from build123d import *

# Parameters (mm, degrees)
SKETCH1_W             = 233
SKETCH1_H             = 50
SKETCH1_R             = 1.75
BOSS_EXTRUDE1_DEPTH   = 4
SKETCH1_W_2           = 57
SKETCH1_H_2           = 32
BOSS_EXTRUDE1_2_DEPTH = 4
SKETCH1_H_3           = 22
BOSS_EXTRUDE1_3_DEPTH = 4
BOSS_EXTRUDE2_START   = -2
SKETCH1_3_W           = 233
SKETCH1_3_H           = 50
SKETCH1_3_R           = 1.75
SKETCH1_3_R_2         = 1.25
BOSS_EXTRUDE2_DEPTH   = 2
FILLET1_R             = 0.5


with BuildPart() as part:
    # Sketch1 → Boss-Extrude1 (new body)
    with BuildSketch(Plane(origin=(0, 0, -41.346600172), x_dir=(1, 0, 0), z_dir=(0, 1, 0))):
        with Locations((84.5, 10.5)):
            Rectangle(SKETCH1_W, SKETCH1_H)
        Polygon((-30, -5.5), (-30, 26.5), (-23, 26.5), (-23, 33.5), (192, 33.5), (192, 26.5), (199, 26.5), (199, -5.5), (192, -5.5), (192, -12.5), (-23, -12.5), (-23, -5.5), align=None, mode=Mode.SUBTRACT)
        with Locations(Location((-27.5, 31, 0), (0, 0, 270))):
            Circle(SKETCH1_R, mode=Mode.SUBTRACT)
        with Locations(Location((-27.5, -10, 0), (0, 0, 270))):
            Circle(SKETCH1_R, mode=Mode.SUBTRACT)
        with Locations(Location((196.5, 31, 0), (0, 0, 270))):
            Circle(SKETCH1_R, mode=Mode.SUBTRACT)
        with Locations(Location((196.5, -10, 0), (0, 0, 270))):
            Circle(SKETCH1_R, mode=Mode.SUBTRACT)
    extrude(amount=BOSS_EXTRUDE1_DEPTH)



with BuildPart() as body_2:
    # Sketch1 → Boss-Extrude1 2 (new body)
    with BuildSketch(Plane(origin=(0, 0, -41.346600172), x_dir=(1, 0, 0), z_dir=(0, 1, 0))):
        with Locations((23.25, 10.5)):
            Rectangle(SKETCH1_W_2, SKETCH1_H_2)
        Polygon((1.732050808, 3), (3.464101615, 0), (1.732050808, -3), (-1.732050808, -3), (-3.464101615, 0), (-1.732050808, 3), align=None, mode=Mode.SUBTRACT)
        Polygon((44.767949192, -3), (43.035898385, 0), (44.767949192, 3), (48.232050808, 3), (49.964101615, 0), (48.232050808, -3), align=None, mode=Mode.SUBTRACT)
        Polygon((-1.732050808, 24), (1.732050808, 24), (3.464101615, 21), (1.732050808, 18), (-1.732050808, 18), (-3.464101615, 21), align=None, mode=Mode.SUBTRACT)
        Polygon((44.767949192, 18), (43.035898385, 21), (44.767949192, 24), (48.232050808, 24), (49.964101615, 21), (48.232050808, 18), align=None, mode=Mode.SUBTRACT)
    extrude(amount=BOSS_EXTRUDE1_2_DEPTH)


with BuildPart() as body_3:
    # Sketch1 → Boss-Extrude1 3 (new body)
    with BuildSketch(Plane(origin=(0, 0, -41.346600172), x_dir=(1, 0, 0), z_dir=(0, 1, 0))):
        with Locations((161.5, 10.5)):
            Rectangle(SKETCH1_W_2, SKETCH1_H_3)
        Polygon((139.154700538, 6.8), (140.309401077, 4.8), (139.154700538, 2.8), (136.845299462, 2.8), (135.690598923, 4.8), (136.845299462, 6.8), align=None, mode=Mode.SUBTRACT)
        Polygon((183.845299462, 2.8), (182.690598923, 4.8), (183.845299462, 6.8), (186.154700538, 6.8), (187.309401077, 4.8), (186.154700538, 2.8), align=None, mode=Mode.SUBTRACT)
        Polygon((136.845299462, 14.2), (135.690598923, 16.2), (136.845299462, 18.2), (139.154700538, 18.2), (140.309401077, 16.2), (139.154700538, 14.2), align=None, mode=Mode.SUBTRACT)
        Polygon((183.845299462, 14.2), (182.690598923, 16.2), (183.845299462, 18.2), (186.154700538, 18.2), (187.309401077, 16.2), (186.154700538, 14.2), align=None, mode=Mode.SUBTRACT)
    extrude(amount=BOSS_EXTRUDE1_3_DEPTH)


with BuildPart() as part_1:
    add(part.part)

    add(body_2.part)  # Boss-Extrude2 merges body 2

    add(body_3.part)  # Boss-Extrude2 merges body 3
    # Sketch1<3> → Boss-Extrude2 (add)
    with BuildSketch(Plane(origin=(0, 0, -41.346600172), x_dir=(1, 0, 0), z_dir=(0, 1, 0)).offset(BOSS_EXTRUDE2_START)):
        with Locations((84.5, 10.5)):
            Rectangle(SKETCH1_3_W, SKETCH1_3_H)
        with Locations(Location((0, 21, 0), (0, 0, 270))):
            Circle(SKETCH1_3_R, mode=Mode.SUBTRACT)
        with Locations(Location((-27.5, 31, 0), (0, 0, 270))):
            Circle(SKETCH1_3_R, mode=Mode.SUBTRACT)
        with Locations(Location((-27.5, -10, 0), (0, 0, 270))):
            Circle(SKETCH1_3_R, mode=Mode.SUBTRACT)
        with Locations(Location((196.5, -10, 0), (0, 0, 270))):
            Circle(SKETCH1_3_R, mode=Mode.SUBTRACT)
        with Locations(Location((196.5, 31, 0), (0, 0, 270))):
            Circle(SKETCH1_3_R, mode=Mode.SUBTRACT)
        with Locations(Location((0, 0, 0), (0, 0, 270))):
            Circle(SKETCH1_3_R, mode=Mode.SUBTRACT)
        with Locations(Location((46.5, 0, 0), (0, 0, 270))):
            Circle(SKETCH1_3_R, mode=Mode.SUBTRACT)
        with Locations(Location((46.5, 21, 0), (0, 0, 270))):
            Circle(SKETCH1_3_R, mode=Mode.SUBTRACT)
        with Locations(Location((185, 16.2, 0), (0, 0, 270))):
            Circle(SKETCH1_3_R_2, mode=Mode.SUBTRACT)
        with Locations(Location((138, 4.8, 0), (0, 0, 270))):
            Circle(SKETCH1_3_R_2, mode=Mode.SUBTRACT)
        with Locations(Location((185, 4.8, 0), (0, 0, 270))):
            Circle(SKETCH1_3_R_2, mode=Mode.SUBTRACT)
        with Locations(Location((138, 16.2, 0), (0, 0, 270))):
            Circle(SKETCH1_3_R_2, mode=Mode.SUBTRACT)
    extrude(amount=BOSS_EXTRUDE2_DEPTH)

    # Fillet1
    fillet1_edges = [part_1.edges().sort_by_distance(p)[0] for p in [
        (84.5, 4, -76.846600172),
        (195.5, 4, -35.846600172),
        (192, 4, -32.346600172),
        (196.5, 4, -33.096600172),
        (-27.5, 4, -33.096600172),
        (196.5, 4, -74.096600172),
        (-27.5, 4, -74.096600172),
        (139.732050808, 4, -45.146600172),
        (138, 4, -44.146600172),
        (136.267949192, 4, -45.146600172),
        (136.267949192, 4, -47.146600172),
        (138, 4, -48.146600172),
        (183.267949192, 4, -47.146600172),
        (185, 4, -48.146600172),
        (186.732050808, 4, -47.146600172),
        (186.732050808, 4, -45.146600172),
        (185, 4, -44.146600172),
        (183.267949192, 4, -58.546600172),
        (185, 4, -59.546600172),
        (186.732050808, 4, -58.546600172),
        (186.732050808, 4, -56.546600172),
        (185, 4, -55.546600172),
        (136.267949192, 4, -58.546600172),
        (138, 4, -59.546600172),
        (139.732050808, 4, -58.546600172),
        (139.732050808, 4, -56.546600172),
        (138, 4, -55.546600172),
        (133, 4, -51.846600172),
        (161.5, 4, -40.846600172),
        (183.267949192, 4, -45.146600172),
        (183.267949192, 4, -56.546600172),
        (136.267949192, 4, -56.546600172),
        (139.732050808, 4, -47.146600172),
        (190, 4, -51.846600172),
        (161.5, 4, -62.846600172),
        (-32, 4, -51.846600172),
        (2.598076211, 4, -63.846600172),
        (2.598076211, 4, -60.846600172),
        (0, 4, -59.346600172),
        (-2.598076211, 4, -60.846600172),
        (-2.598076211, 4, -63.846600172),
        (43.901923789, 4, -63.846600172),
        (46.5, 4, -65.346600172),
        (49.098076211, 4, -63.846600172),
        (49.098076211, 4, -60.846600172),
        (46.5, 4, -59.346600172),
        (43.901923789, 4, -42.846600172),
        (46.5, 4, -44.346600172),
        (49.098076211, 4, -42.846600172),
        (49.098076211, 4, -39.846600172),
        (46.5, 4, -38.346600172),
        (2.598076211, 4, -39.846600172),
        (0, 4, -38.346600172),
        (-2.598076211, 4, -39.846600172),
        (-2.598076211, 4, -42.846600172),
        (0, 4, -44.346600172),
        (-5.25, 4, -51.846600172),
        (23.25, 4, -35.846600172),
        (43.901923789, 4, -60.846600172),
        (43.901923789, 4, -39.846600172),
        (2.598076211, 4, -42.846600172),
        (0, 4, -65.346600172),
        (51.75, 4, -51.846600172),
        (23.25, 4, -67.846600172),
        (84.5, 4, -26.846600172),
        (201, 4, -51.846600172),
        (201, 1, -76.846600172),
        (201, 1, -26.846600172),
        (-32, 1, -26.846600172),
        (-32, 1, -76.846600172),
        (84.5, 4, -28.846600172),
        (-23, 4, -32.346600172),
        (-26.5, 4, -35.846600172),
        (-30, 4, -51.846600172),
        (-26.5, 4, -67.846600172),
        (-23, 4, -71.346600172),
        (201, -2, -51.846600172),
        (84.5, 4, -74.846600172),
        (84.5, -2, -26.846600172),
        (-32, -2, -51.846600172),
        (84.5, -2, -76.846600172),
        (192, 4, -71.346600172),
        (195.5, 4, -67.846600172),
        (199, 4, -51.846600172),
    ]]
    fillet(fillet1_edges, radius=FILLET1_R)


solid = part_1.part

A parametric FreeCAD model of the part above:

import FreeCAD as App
import Part
import Sketcher
from FreeCAD import Vector
Q = App.Units.Quantity


def edges_at(feature, points):
    """Names of the edges that pass closest to the given points."""
    edges = feature.Shape.Edges
    near = lambda p: min(range(len(edges)), key=lambda i: edges[i].distToShape(Part.Vertex(*p))[0])
    return sorted({f"Edge{near(p) + 1}" for p in points})


def add_polygon(sketch, points):
    """Adds a closed chain of lines whose ends are joined by coincident constraints."""
    first, n = sketch.GeometryCount, len(points)
    for a, b in zip(points, points[1:] + points[:1]):
        sketch.addGeometry(Part.LineSegment(App.Vector(*a, 0), App.Vector(*b, 0)), False)
    for i in range(n):
        sketch.addConstraint(Sketcher.Constraint("Coincident", first + i, 2, first + (i + 1) % n, 1))

doc = App.newDocument("Part")
body = doc.addObject("PartDesign::Body", "Body")

# Sketch on XZ plane
sketch1 = doc.addObject("Sketcher::SketchObject", "Sketch")
body.addObject(sketch1)
sketch1.AttachmentSupport = (doc.XZ_Plane, [""])
sketch1.MapMode = "FlatFace"
add_polygon(sketch1, [(-32, -76.8466), (-32, -26.8466), (201, -26.8466), (201, -76.8466)])  # lines 0-3
sketch1.addGeometry(Part.Circle(Vector(-27.5, -31.3466, 0), Vector(0, 0, 1), 1.75), False)  # 4
sketch1.addGeometry(Part.Circle(Vector(196.5, -31.3466, 0), Vector(0, 0, 1), 1.75), False)  # 5
sketch1.addGeometry(Part.Circle(Vector(-27.5, -72.3466, 0), Vector(0, 0, 1), 1.75), False)  # 6
add_polygon(sketch1, [(-23, -35.8466), (-30, -35.8466), (-30, -67.8466), (-23, -67.8466), (-23, -74.8466), (192, -74.8466), (192, -67.8466), (199, -67.8466), (199, -35.8466), (192, -35.8466), (192, -28.8466), (-23, -28.8466)])  # lines 7-18
sketch1.addGeometry(Part.Circle(Vector(196.5, -72.3466, 0), Vector(0, 0, 1), 1.75), False)  # 19
sketch1.addConstraint([
    Sketcher.Constraint("Vertical", 0),
    Sketcher.Constraint("Horizontal", 1),
    Sketcher.Constraint("Vertical", 2),
    Sketcher.Constraint("Horizontal", 3),
    Sketcher.Constraint("Horizontal", 7),
    Sketcher.Constraint("Vertical", 8),
    Sketcher.Constraint("Horizontal", 9),
    Sketcher.Constraint("Vertical", 10),
    Sketcher.Constraint("Horizontal", 11),
    Sketcher.Constraint("Vertical", 12),
    Sketcher.Constraint("Horizontal", 13),
    Sketcher.Constraint("Vertical", 14),
    Sketcher.Constraint("Horizontal", 15),
    Sketcher.Constraint("Vertical", 16),
    Sketcher.Constraint("Horizontal", 17),
    Sketcher.Constraint("Vertical", 18),
    Sketcher.Constraint("Equal", 4, 5),
    Sketcher.Constraint("Equal", 5, 6),
    Sketcher.Constraint("Equal", 6, 19),
    Sketcher.Constraint("Horizontal", 4, 3, 5, 3),
    Sketcher.Constraint("Horizontal", 6, 3, 19, 3),
    Sketcher.Constraint("Horizontal", 9, 2, 12, 2),
    Sketcher.Constraint("Horizontal", 7, 2, 14, 2),
    Sketcher.Constraint("Vertical", 4, 3, 6, 3),
    Sketcher.Constraint("Vertical", 5, 3, 19, 3),
    Sketcher.Constraint("Vertical", 12, 2, 15, 2),
    Sketcher.Constraint("Vertical", 10, 2, 17, 2),
    Sketcher.Constraint("Equal", 9, 13),
    Sketcher.Constraint("Equal", 15, 10),
    Sketcher.Constraint("Equal", 12, 16),
    Sketcher.Constraint("Diameter", 4, 3.5),
    Sketcher.Constraint("DistanceX", 1, 1, 1, 2, 233.0),
    Sketcher.Constraint("DistanceX", 7, 2, 7, 1, 7.0),
    Sketcher.Constraint("DistanceX", 11, 1, 11, 2, 215.0),
    Sketcher.Constraint("DistanceY", 0, 1, 0, 2, 50.0),
    Sketcher.Constraint("DistanceY", 8, 2, 8, 1, 32.0),
    Sketcher.Constraint("DistanceX", 0, 2, -1, 1, 32.0),
    Sketcher.Constraint("DistanceX", 7, 2, -1, 1, 30.0),
    Sketcher.Constraint("DistanceX", 4, 3, 5, 3, 224.0),
    Sketcher.Constraint("DistanceY", 6, 3, 4, 3, 41.0),
    Sketcher.Constraint("DistanceY", 7, 2, 0, 2, 9.0),
    Sketcher.Constraint("DistanceX", 4, 3, -1, 1, 27.5),
    Sketcher.Constraint("DistanceY", 4, 3, 0, 2, 4.5),
    Sketcher.Constraint("DistanceY", 4, 3, -1, 1, 31.3466),
])
pad1 = doc.addObject("PartDesign::Pad", "Pad")
body.addObject(pad1)
pad1.Profile = sketch1
pad1.Length = 4
pad1.Reversed = True
body2 = doc.addObject("PartDesign::Body", "Body001")

# Sketch on XZ plane
sketch2 = doc.addObject("Sketcher::SketchObject", "Sketch001")
body2.addObject(sketch2)
sketch2.AttachmentSupport = (doc.getObject("XZ_Plane001"), [""])
sketch2.MapMode = "FlatFace"
add_polygon(sketch2, [(-5.25, -67.8466), (-5.25, -35.8466), (51.75, -35.8466), (51.75, -67.8466)])  # lines 0-3
add_polygon(sketch2, [(-1.732051, -44.3466), (1.732051, -44.3466), (3.464102, -41.3466), (1.732051, -38.3466), (-1.732051, -38.3466), (-3.464102, -41.3466)])  # lines 4-9
add_polygon(sketch2, [(48.232051, -38.3466), (44.767949, -38.3466), (43.035898, -41.3466), (44.767949, -44.3466), (48.232051, -44.3466), (49.964102, -41.3466)])  # lines 10-15
add_polygon(sketch2, [(-3.464102, -62.3466), (-1.732051, -65.3466), (1.732051, -65.3466), (3.464102, -62.3466), (1.732051, -59.3466), (-1.732051, -59.3466)])  # lines 16-21
add_polygon(sketch2, [(48.232051, -59.3466), (44.767949, -59.3466), (43.035898, -62.3466), (44.767949, -65.3466), (48.232051, -65.3466), (49.964102, -62.3466)])  # lines 22-27
sketch2.addConstraint([
    Sketcher.Constraint("Vertical", 0),
    Sketcher.Constraint("Horizontal", 1),
    Sketcher.Constraint("Vertical", 2),
    Sketcher.Constraint("Horizontal", 3),
    Sketcher.Constraint("Horizontal", 4),
    Sketcher.Constraint("Horizontal", 7),
    Sketcher.Constraint("Horizontal", 10),
    Sketcher.Constraint("Horizontal", 13),
    Sketcher.Constraint("Horizontal", 17),
    Sketcher.Constraint("Horizontal", 20),
    Sketcher.Constraint("Horizontal", 22),
    Sketcher.Constraint("Horizontal", 25),
    Sketcher.Constraint("Symmetric", 5, 2, 8, 2, -2),
    Sketcher.Constraint("Symmetric", 18, 2, 21, 2, -2),
    Sketcher.Constraint("Parallel", 5, 8),
    Sketcher.Constraint("Parallel", 6, 9),
    Sketcher.Constraint("Parallel", 8, 11),
    Sketcher.Constraint("Parallel", 9, 12),
    Sketcher.Constraint("Parallel", 11, 14),
    Sketcher.Constraint("Parallel", 12, 15),
    Sketcher.Constraint("Parallel", 15, 16),
    Sketcher.Constraint("Parallel", 14, 18),
    Sketcher.Constraint("Parallel", 16, 19),
    Sketcher.Constraint("Parallel", 18, 21),
    Sketcher.Constraint("Parallel", 21, 23),
    Sketcher.Constraint("Parallel", 19, 24),
    Sketcher.Constraint("Parallel", 23, 26),
    Sketcher.Constraint("Parallel", 24, 27),
    Sketcher.Constraint("Horizontal", 7, 2, 10, 2),
    Sketcher.Constraint("Horizontal", 8, 2, 11, 2),
    Sketcher.Constraint("Horizontal", 9, 2, 12, 2),
    Sketcher.Constraint("Horizontal", 11, 2, 14, 2),
    Sketcher.Constraint("Horizontal", 20, 2, 22, 2),
    Sketcher.Constraint("Horizontal", 21, 2, 23, 2),
    Sketcher.Constraint("Horizontal", 17, 2, 24, 2),
    Sketcher.Constraint("Horizontal", 23, 2, 26, 2),
    Sketcher.Constraint("Vertical", 4, 2, 6, 2),
    Sketcher.Constraint("Vertical", 7, 2, 9, 2),
    Sketcher.Constraint("Vertical", 9, 2, 16, 2),
    Sketcher.Constraint("Vertical", 5, 2, 18, 2),
    Sketcher.Constraint("Vertical", 17, 2, 19, 2),
    Sketcher.Constraint("Vertical", 12, 2, 22, 2),
    Sketcher.Constraint("Vertical", 15, 2, 25, 2),
    Sketcher.Constraint("Equal", 7, 10),
    Sketcher.Constraint("DistanceX", 1, 1, 1, 2, 57.0),
    Sketcher.Constraint("DistanceY", 0, 1, 0, 2, 32.0),
    Sketcher.Constraint("Angle", 5, Q("60 deg")),
    Sketcher.Constraint("DistanceY", 4, 2, 5, 2, 3.0),
    Sketcher.Constraint("DistanceY", 16, 2, 9, 2, 21.0),
    Sketcher.Constraint("DistanceY", 4, 2, 0, 2, 8.5),
    Sketcher.Constraint("DistanceX", 0, 2, -1, 1, 5.25),
    Sketcher.Constraint("DistanceX", 4, 1, 4, 2, 3.464102),
    Sketcher.Constraint("DistanceY", 0, 2, -1, 1, 35.8466),
    Sketcher.Constraint("DistanceX", -1, 1, 11, 2, 43.035898),
])
pad2 = doc.addObject("PartDesign::Pad", "Pad001")
body2.addObject(pad2)
pad2.Profile = sketch2
pad2.Length = 4
pad2.Reversed = True
body3 = doc.addObject("PartDesign::Body", "Body002")

# Sketch on XZ plane
sketch3 = doc.addObject("Sketcher::SketchObject", "Sketch002")
body3.addObject(sketch3)
sketch3.AttachmentSupport = (doc.getObject("XZ_Plane002"), [""])
sketch3.MapMode = "FlatFace"
add_polygon(sketch3, [(133, -62.8466), (133, -40.8466), (190, -40.8466), (190, -62.8466)])  # lines 0-3
add_polygon(sketch3, [(136.845299, -48.1466), (139.154701, -48.1466), (140.309401, -46.1466), (139.154701, -44.1466), (136.845299, -44.1466), (135.690599, -46.1466)])  # lines 4-9
add_polygon(sketch3, [(186.154701, -44.1466), (183.845299, -44.1466), (182.690599, -46.1466), (183.845299, -48.1466), (186.154701, -48.1466), (187.309401, -46.1466)])  # lines 10-15
add_polygon(sketch3, [(139.154701, -55.5466), (136.845299, -55.5466), (135.690599, -57.5466), (136.845299, -59.5466), (139.154701, -59.5466), (140.309401, -57.5466)])  # lines 16-21
add_polygon(sketch3, [(186.154701, -55.5466), (183.845299, -55.5466), (182.690599, -57.5466), (183.845299, -59.5466), (186.154701, -59.5466), (187.309401, -57.5466)])  # lines 22-27
sketch3.addConstraint([
    Sketcher.Constraint("Vertical", 0),
    Sketcher.Constraint("Horizontal", 1),
    Sketcher.Constraint("Vertical", 2),
    Sketcher.Constraint("Horizontal", 3),
    Sketcher.Constraint("Horizontal", 4),
    Sketcher.Constraint("Horizontal", 7),
    Sketcher.Constraint("Horizontal", 10),
    Sketcher.Constraint("Horizontal", 13),
    Sketcher.Constraint("Horizontal", 16),
    Sketcher.Constraint("Horizontal", 19),
    Sketcher.Constraint("Horizontal", 22),
    Sketcher.Constraint("Horizontal", 25),
    Sketcher.Constraint("Parallel", 5, 8),
    Sketcher.Constraint("Parallel", 6, 9),
    Sketcher.Constraint("Parallel", 8, 11),
    Sketcher.Constraint("Parallel", 9, 12),
    Sketcher.Constraint("Parallel", 11, 14),
    Sketcher.Constraint("Parallel", 12, 15),
    Sketcher.Constraint("Parallel", 14, 17),
    Sketcher.Constraint("Parallel", 15, 18),
    Sketcher.Constraint("Parallel", 17, 20),
    Sketcher.Constraint("Parallel", 18, 21),
    Sketcher.Constraint("Parallel", 20, 23),
    Sketcher.Constraint("Parallel", 21, 24),
    Sketcher.Constraint("Parallel", 23, 26),
    Sketcher.Constraint("Parallel", 24, 27),
    Sketcher.Constraint("Horizontal", 5, 2, 8, 2),
    Sketcher.Constraint("Horizontal", 7, 2, 10, 2),
    Sketcher.Constraint("Horizontal", 8, 2, 11, 2),
    Sketcher.Constraint("Horizontal", 9, 2, 12, 2),
    Sketcher.Constraint("Horizontal", 11, 2, 14, 2),
    Sketcher.Constraint("Horizontal", 17, 2, 20, 2),
    Sketcher.Constraint("Horizontal", 21, 2, 22, 2),
    Sketcher.Constraint("Horizontal", 20, 2, 23, 2),
    Sketcher.Constraint("Horizontal", 19, 2, 24, 2),
    Sketcher.Constraint("Horizontal", 23, 2, 26, 2),
    Sketcher.Constraint("Vertical", 4, 2, 6, 2),
    Sketcher.Constraint("Vertical", 7, 2, 9, 2),
    Sketcher.Constraint("Vertical", 9, 2, 16, 2),
    Sketcher.Constraint("Vertical", 8, 2, 17, 2),
    Sketcher.Constraint("Vertical", 16, 2, 18, 2),
    Sketcher.Constraint("Vertical", 6, 2, 19, 2),
    Sketcher.Constraint("Vertical", 12, 2, 22, 2),
    Sketcher.Constraint("Vertical", 15, 2, 25, 2),
    Sketcher.Constraint("Equal", 7, 10),
    Sketcher.Constraint("DistanceX", 1, 1, 1, 2, 57.0),
    Sketcher.Constraint("DistanceY", 0, 1, 0, 2, 22.0),
    Sketcher.Constraint("Angle", 5, Q("60 deg")),
    Sketcher.Constraint("DistanceX", -1, 1, 0, 2, 133.0),
    Sketcher.Constraint("DistanceY", 4, 2, 5, 2, 2.0),
    Sketcher.Constraint("DistanceY", 4, 2, 0, 2, 7.3),
    Sketcher.Constraint("DistanceY", 16, 2, 9, 2, 7.4),
    Sketcher.Constraint("DistanceX", 4, 1, 4, 2, 2.309401),
    Sketcher.Constraint("DistanceY", 0, 2, -1, 1, 40.8466),
    Sketcher.Constraint("DistanceX", -1, 1, 4, 2, 139.154701),
    Sketcher.Constraint("DistanceX", -1, 1, 10, 2, 183.845299),
])
pad3 = doc.addObject("PartDesign::Pad", "Pad002")
body3.addObject(pad3)
pad3.Profile = sketch3
pad3.Length = 4
pad3.Reversed = True
body.AllowCompound = True
doc.recompute()

boolean = doc.addObject("PartDesign::Boolean", "Boolean")
body.addObject(boolean)
boolean.Type = "Fuse"
boolean.addObjects([body2])
doc.recompute()

boolean2 = doc.addObject("PartDesign::Boolean", "Boolean001")
body.addObject(boolean2)
boolean2.Type = "Fuse"
boolean2.addObjects([body3])

# Sketch on XZ plane
sketch4 = doc.addObject("Sketcher::SketchObject", "Sketch003")
body.addObject(sketch4)
sketch4.AttachmentSupport = (doc.XZ_Plane, [""])
sketch4.MapMode = "FlatFace"
sketch4.AttachmentOffset = App.Placement(Vector(0, 0, 2), App.Rotation())
add_polygon(sketch4, [(-32, -76.8466), (-32, -26.8466), (201, -26.8466), (201, -76.8466)])  # lines 0-3
sketch4.addGeometry(Part.Circle(Vector(-27.5, -31.3466, 0), Vector(0, 0, 1), 1.75), False)  # 4
sketch4.addGeometry(Part.Circle(Vector(0, -41.3466, 0), Vector(0, 0, 1), 1.75), False)  # 5
sketch4.addGeometry(Part.Circle(Vector(46.5, -41.3466, 0), Vector(0, 0, 1), 1.75), False)  # 6
sketch4.addGeometry(Part.Circle(Vector(196.5, -31.3466, 0), Vector(0, 0, 1), 1.75), False)  # 7
sketch4.addGeometry(Part.Circle(Vector(138, -46.1466, 0), Vector(0, 0, 1), 1.25), False)  # 8
sketch4.addGeometry(Part.Circle(Vector(185, -46.1466, 0), Vector(0, 0, 1), 1.25), False)  # 9
sketch4.addGeometry(Part.Circle(Vector(0, -62.3466, 0), Vector(0, 0, 1), 1.75), False)  # 10
sketch4.addGeometry(Part.Circle(Vector(46.5, -62.3466, 0), Vector(0, 0, 1), 1.75), False)  # 11
sketch4.addGeometry(Part.Circle(Vector(-27.5, -72.3466, 0), Vector(0, 0, 1), 1.75), False)  # 12
sketch4.addGeometry(Part.Circle(Vector(138, -57.5466, 0), Vector(0, 0, 1), 1.25), False)  # 13
sketch4.addGeometry(Part.Circle(Vector(185, -57.5466, 0), Vector(0, 0, 1), 1.25), False)  # 14
sketch4.addGeometry(Part.Circle(Vector(196.5, -72.3466, 0), Vector(0, 0, 1), 1.75), False)  # 15
sketch4.addConstraint([
    Sketcher.Constraint("Vertical", 0),
    Sketcher.Constraint("Horizontal", 1),
    Sketcher.Constraint("Vertical", 2),
    Sketcher.Constraint("Horizontal", 3),
    Sketcher.Constraint("Equal", 4, 5),
    Sketcher.Constraint("Equal", 5, 6),
    Sketcher.Constraint("Equal", 6, 7),
    Sketcher.Constraint("Equal", 8, 9),
    Sketcher.Constraint("Equal", 7, 10),
    Sketcher.Constraint("Equal", 10, 11),
    Sketcher.Constraint("Equal", 11, 12),
    Sketcher.Constraint("Equal", 9, 13),
    Sketcher.Constraint("Equal", 13, 14),
    Sketcher.Constraint("Equal", 12, 15),
    Sketcher.Constraint("PointOnObject", 5, 3, -2),
    Sketcher.Constraint("PointOnObject", 10, 3, -2),
    Sketcher.Constraint("Horizontal", 5, 3, 6, 3),
    Sketcher.Constraint("Horizontal", 4, 3, 7, 3),
    Sketcher.Constraint("Horizontal", 8, 3, 9, 3),
    Sketcher.Constraint("Horizontal", 10, 3, 11, 3),
    Sketcher.Constraint("Horizontal", 13, 3, 14, 3),
    Sketcher.Constraint("Horizontal", 12, 3, 15, 3),
    Sketcher.Constraint("Vertical", 6, 3, 11, 3),
    Sketcher.Constraint("Vertical", 4, 3, 12, 3),
    Sketcher.Constraint("Vertical", 8, 3, 13, 3),
    Sketcher.Constraint("Vertical", 9, 3, 14, 3),
    Sketcher.Constraint("Vertical", 7, 3, 15, 3),
    Sketcher.Constraint("Diameter", 4, 3.5),
    Sketcher.Constraint("Diameter", 8, 2.5),
    Sketcher.Constraint("DistanceX", 1, 1, 1, 2, 233.0),
    Sketcher.Constraint("DistanceY", 0, 1, 0, 2, 50.0),
    Sketcher.Constraint("DistanceX", -1, 1, 8, 3, 138.0),
    Sketcher.Constraint("DistanceX", -1, 1, 9, 3, 185.0),
    Sketcher.Constraint("DistanceX", 0, 2, -1, 1, 32.0),
    Sketcher.Constraint("DistanceY", 5, 3, 4, 3, 10.0),
    Sketcher.Constraint("DistanceX", 4, 3, 6, 3, 74.0),
    Sketcher.Constraint("DistanceX", 6, 3, 7, 3, 150.0),
    Sketcher.Constraint("DistanceY", 10, 3, 5, 3, 21.0),
    Sketcher.Constraint("DistanceY", 12, 3, 10, 3, 10.0),
    Sketcher.Constraint("DistanceX", 4, 3, -1, 1, 27.5),
    Sketcher.Constraint("DistanceY", 8, 3, 7, 3, 14.8),
    Sketcher.Constraint("DistanceY", 13, 3, 8, 3, 11.4),
    Sketcher.Constraint("DistanceY", 4, 3, 0, 2, 4.5),
    Sketcher.Constraint("DistanceY", 4, 3, -1, 1, 31.3466),
])
pad4 = doc.addObject("PartDesign::Pad", "Pad003")
body.addObject(pad4)
pad4.Profile = sketch4
pad4.Length = 2
pad4.Reversed = True
doc.recompute()

fillet = doc.addObject("PartDesign::Fillet", "Fillet")
body.addObject(fillet)
fillet.Base = (pad4, edges_at(pad4, [
    (84.5, 4, -76.847),
    (195.5, 4, -35.847),
    (192, 4, -32.347),
    (196.5, 4, -33.097),
    (-27.5, 4, -33.097),
    (196.5, 4, -74.097),
    (-27.5, 4, -74.097),
    (139.732, 4, -45.147),
    (138, 4, -44.147),
    (136.268, 4, -45.147),
    (136.268, 4, -47.147),
    (138, 4, -48.147),
    (183.268, 4, -47.147),
    (185, 4, -48.147),
    (186.732, 4, -47.147),
    (186.732, 4, -45.147),
    (185, 4, -44.147),
    (183.268, 4, -58.547),
    (185, 4, -59.547),
    (186.732, 4, -58.547),
    (186.732, 4, -56.547),
    (185, 4, -55.547),
    (136.268, 4, -58.547),
    (138, 4, -59.547),
    (139.732, 4, -58.547),
    (139.732, 4, -56.547),
    (138, 4, -55.547),
    (133, 4, -51.847),
    (161.5, 4, -40.847),
    (183.268, 4, -45.147),
    (183.268, 4, -56.547),
    (136.268, 4, -56.547),
    (139.732, 4, -47.147),
    (190, 4, -51.847),
    (161.5, 4, -62.847),
    (-32, 4, -51.847),
    (2.598, 4, -63.847),
    (2.598, 4, -60.847),
    (0, 4, -59.347),
    (-2.598, 4, -60.847),
    (-2.598, 4, -63.847),
    (43.902, 4, -63.847),
    (46.5, 4, -65.347),
    (49.098, 4, -63.847),
    (49.098, 4, -60.847),
    (46.5, 4, -59.347),
    (43.902, 4, -42.847),
    (46.5, 4, -44.347),
    (49.098, 4, -42.847),
    (49.098, 4, -39.847),
    (46.5, 4, -38.347),
    (2.598, 4, -39.847),
    (0, 4, -38.347),
    (-2.598, 4, -39.847),
    (-2.598, 4, -42.847),
    (0, 4, -44.347),
    (-5.25, 4, -51.847),
    (23.25, 4, -35.847),
    (43.902, 4, -60.847),
    (43.902, 4, -39.847),
    (2.598, 4, -42.847),
    (0, 4, -65.347),
    (51.75, 4, -51.847),
    (23.25, 4, -67.847),
    (84.5, 4, -26.847),
    (201, 4, -51.847),
    (201, 1, -76.847),
    (201, 1, -26.847),
    (-32, 1, -26.847),
    (-32, 1, -76.847),
    (84.5, 4, -28.847),
    (-23, 4, -32.347),
    (-26.5, 4, -35.847),
    (-30, 4, -51.847),
    (-26.5, 4, -67.847),
    (-23, 4, -71.347),
    (201, -2, -51.847),
    (84.5, 4, -74.847),
    (84.5, -2, -26.847),
    (-32, -2, -51.847),
    (84.5, -2, -76.847),
    (192, 4, -71.347),
    (195.5, 4, -67.847),
    (199, 4, -51.847),
]))
fillet.Radius = 0.5

doc.recompute()
